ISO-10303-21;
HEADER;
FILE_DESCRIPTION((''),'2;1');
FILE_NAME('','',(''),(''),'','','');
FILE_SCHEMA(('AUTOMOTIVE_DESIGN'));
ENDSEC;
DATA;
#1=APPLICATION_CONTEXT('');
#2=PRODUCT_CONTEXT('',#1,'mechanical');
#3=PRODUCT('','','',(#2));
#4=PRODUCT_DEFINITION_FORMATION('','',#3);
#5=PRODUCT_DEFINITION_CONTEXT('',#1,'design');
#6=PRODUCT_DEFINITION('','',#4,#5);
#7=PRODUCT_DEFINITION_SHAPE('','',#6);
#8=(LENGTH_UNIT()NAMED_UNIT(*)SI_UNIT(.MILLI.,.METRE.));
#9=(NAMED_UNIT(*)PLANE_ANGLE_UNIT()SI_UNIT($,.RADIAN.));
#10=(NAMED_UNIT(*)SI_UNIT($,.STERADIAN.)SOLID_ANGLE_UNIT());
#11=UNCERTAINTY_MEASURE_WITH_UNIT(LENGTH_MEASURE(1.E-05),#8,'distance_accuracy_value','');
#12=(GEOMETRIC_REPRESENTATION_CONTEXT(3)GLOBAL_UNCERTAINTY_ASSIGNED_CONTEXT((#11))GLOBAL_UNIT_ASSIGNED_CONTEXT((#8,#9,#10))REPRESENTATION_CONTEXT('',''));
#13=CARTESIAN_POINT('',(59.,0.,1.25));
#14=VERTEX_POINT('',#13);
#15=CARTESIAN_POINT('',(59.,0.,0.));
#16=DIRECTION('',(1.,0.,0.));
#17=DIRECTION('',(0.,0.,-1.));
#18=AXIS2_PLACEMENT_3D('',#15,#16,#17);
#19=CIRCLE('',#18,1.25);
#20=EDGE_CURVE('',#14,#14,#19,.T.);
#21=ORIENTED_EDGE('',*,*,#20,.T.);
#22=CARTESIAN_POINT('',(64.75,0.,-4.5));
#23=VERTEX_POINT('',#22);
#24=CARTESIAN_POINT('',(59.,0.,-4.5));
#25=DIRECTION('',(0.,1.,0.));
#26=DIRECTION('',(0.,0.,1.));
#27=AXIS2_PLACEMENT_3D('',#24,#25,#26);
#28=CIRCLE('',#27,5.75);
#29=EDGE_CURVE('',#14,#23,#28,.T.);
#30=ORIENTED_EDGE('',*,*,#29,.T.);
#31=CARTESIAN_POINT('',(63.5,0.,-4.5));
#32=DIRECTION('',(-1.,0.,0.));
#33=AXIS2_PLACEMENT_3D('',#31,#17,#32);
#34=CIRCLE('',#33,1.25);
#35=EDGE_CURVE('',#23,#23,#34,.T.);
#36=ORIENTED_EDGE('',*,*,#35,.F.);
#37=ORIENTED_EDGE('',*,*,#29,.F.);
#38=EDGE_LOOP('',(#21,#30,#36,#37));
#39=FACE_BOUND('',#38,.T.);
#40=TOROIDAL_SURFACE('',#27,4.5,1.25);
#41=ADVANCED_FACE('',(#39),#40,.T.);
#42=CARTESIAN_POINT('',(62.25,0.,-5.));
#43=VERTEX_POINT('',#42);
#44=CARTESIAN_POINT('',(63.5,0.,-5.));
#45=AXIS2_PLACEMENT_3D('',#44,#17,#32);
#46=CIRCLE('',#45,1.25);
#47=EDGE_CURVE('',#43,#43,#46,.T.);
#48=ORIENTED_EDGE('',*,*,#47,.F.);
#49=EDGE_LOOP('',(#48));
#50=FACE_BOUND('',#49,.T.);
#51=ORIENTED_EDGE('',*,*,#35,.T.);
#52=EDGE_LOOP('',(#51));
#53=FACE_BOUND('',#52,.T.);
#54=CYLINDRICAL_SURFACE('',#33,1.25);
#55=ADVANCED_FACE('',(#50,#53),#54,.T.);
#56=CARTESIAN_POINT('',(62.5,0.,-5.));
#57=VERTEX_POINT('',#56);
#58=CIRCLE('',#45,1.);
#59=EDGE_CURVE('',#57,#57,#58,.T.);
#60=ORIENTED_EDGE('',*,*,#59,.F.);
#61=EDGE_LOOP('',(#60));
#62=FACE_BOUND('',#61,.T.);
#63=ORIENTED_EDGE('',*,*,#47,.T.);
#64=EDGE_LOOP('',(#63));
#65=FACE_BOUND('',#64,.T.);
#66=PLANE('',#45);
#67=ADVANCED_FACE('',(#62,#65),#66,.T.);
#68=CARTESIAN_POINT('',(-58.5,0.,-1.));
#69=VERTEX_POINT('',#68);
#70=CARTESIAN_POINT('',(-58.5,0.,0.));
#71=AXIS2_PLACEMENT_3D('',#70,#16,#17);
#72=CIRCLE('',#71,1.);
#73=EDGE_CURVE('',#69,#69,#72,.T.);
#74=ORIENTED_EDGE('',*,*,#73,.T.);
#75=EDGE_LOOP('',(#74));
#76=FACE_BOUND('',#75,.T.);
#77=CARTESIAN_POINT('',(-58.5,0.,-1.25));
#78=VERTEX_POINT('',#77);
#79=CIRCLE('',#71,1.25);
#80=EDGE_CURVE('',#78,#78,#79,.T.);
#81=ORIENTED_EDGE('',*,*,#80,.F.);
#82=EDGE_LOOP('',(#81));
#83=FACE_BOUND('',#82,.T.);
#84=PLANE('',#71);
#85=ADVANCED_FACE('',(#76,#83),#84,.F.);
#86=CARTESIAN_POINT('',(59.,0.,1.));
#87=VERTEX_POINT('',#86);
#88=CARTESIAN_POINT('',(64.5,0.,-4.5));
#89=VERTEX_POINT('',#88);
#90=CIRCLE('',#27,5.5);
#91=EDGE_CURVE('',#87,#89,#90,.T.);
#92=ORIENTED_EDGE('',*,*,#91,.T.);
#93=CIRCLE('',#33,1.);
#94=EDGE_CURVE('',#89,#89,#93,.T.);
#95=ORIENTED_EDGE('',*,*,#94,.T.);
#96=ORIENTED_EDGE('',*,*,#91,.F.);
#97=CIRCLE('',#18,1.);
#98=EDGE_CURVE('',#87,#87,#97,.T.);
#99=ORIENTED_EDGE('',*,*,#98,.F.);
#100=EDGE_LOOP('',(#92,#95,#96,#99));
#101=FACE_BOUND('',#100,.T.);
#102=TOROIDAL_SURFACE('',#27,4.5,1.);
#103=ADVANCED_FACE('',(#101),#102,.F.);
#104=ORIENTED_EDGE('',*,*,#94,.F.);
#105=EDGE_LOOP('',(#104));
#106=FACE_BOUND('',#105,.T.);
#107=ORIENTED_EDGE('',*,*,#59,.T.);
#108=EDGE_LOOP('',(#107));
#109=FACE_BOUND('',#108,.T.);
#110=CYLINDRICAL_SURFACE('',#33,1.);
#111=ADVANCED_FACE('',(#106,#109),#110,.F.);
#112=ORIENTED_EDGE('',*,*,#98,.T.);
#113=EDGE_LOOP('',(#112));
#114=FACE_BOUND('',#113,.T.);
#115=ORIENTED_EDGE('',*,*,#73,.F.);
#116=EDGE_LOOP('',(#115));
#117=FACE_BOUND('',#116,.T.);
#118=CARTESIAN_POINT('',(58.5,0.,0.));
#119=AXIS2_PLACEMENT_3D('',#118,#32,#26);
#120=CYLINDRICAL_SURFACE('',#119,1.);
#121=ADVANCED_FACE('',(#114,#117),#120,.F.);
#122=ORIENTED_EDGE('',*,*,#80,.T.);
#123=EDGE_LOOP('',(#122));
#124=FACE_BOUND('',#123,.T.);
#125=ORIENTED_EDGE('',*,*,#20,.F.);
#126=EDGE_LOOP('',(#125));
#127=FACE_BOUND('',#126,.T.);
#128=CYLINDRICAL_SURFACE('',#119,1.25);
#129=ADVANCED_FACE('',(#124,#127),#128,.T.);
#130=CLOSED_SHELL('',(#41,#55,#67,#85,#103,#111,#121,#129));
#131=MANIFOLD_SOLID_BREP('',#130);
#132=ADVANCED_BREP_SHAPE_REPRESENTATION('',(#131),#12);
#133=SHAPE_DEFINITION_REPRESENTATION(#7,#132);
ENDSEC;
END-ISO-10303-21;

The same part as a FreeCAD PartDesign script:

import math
import FreeCAD as App
import Part
import Sketcher
from FreeCAD import Vector

doc = App.newDocument("Part")
params = doc.addObject("Spreadsheet::Sheet", "Params")
for row, (alias, value) in enumerate([
    ("sketch1_diameter", "2 mm"),
    ("sketch1_diameter2", "2.5 mm"),
    ("pad1_length", "117 mm"),
    ("sketch2_diameter", "2 mm"),
    ("sketch2_diameter2", "2.5 mm"),
    ("sketch3_radius", "4.5 mm"),
    ("sketch3_width", "0.5 mm"),
], start=1):
    params.set(f"A{row}", alias)
    params.set(f"B{row}", "=" + value)
    params.setAlias(f"B{row}", alias)

body = doc.addObject("PartDesign::Body", "Body")

sketch1 = body.newObject("Sketcher::SketchObject", "Sketch")
sketch1.AttachmentSupport = (doc.getObject("YZ_Plane"), [""])
sketch1.MapMode = "FlatFace"
sketch1.addGeometry(Part.Circle(Vector(0, 0, 0), Vector(0, 0, 1), 1.2), False)
sketch1.addGeometry(Part.Circle(Vector(0, 0, 0), Vector(0, 0, 1), 1), False)
sketch1.addConstraint(Sketcher.Constraint("Coincident", 0, 3, -1, 1))
sketch1.addConstraint(Sketcher.Constraint("Coincident", 1, 3, -1, 1))
sketch1.addConstraint(Sketcher.Constraint("Diameter", 1, 2.0))
sketch1.addConstraint(Sketcher.Constraint("Diameter", 0, 2.5))
sketch1.setExpression("Constraints[2]", "Params.sketch1_diameter")
sketch1.setExpression("Constraints[3]", "Params.sketch1_diameter2")
pad1 = body.newObject("PartDesign::Pad", "Pad")
pad1.Profile = sketch1
pad1.setExpression("Length", "Params.pad1_length")
pad1.Midplane = True

sketch2 = body.newObject("Sketcher::SketchObject", "Sketch001")
sketch2.AttachmentSupport = (doc.getObject("YZ_Plane"), [""])
sketch2.MapMode = "FlatFace"
sketch2.AttachmentOffset = App.Placement(Vector(0, 0, 58.5), App.Rotation())
sketch2.addGeometry(Part.Circle(Vector(0, 0, 0), Vector(0, 0, 1), 1.2), False)
sketch2.addGeometry(Part.Circle(Vector(0, 0, 0), Vector(0, 0, 1), 1), False)
sketch2.addConstraint(Sketcher.Constraint("Coincident", 0, 3, -1, 1))
sketch2.addConstraint(Sketcher.Constraint("Coincident", 1, 3, -1, 1))
sketch2.addConstraint(Sketcher.Constraint("Diameter", 1, 2.0))
sketch2.addConstraint(Sketcher.Constraint("Diameter", 0, 2.5))
sketch2.setExpression("Constraints[2]", "Params.sketch2_diameter")
sketch2.setExpression("Constraints[3]", "Params.sketch2_diameter2")

sketch3 = body.newObject("Sketcher::SketchObject", "Sketch002")
sketch3.AttachmentSupport = (doc.getObject("XZ_Plane"), [""])
sketch3.MapMode = "FlatFace"
sketch3.addGeometry(Part.LineSegment(Vector(58.5, 0, 0), Vector(59, 0, 0)), False)
sketch3.addGeometry(Part.ArcOfCircle(Part.Circle(Vector(59, -4.5, 0), Vector(0, 0, 1), 4.5), math.radians(0), math.radians(90)), False)
sketch3.addGeometry(Part.LineSegment(Vector(63.5, -4.5, 0), Vector(63.5, -5, 0)), False)
sketch3.addConstraint(Sketcher.Constraint("Tangent", 0, 2, 1, 2))
sketch3.addConstraint(Sketcher.Constraint("Tangent", 1, 1, 2, 1))
sketch3.addConstraint(Sketcher.Constraint("Horizontal", 0))
sketch3.addConstraint(Sketcher.Constraint("Vertical", 2))
sketch3.addConstraint(Sketcher.Constraint("PointOnObject", 0, 1, -1))
sketch3.addConstraint(Sketcher.Constraint("Equal", 0, 2))
sketch3.addConstraint(Sketcher.Constraint("Radius", 1, 4.5))
sketch3.addConstraint(Sketcher.Constraint("DistanceX", 0, 1, 0, 2, 0.5))
sketch3.addConstraint(Sketcher.Constraint("DistanceX", -1, 1, 1, 3, 59.0))
sketch3.setExpression("Constraints[6]", "Params.sketch3_radius")
sketch3.setExpression("Constraints[7]", "Params.sketch3_width")
doc.recompute()

additivepipe = body.newObject("PartDesign::AdditivePipe", "AdditivePipe")
additivepipe.Profile = sketch2
additivepipe.Spine = (sketch3, ["Edge1", "Edge2", "Edge3"])

doc.recompute()
